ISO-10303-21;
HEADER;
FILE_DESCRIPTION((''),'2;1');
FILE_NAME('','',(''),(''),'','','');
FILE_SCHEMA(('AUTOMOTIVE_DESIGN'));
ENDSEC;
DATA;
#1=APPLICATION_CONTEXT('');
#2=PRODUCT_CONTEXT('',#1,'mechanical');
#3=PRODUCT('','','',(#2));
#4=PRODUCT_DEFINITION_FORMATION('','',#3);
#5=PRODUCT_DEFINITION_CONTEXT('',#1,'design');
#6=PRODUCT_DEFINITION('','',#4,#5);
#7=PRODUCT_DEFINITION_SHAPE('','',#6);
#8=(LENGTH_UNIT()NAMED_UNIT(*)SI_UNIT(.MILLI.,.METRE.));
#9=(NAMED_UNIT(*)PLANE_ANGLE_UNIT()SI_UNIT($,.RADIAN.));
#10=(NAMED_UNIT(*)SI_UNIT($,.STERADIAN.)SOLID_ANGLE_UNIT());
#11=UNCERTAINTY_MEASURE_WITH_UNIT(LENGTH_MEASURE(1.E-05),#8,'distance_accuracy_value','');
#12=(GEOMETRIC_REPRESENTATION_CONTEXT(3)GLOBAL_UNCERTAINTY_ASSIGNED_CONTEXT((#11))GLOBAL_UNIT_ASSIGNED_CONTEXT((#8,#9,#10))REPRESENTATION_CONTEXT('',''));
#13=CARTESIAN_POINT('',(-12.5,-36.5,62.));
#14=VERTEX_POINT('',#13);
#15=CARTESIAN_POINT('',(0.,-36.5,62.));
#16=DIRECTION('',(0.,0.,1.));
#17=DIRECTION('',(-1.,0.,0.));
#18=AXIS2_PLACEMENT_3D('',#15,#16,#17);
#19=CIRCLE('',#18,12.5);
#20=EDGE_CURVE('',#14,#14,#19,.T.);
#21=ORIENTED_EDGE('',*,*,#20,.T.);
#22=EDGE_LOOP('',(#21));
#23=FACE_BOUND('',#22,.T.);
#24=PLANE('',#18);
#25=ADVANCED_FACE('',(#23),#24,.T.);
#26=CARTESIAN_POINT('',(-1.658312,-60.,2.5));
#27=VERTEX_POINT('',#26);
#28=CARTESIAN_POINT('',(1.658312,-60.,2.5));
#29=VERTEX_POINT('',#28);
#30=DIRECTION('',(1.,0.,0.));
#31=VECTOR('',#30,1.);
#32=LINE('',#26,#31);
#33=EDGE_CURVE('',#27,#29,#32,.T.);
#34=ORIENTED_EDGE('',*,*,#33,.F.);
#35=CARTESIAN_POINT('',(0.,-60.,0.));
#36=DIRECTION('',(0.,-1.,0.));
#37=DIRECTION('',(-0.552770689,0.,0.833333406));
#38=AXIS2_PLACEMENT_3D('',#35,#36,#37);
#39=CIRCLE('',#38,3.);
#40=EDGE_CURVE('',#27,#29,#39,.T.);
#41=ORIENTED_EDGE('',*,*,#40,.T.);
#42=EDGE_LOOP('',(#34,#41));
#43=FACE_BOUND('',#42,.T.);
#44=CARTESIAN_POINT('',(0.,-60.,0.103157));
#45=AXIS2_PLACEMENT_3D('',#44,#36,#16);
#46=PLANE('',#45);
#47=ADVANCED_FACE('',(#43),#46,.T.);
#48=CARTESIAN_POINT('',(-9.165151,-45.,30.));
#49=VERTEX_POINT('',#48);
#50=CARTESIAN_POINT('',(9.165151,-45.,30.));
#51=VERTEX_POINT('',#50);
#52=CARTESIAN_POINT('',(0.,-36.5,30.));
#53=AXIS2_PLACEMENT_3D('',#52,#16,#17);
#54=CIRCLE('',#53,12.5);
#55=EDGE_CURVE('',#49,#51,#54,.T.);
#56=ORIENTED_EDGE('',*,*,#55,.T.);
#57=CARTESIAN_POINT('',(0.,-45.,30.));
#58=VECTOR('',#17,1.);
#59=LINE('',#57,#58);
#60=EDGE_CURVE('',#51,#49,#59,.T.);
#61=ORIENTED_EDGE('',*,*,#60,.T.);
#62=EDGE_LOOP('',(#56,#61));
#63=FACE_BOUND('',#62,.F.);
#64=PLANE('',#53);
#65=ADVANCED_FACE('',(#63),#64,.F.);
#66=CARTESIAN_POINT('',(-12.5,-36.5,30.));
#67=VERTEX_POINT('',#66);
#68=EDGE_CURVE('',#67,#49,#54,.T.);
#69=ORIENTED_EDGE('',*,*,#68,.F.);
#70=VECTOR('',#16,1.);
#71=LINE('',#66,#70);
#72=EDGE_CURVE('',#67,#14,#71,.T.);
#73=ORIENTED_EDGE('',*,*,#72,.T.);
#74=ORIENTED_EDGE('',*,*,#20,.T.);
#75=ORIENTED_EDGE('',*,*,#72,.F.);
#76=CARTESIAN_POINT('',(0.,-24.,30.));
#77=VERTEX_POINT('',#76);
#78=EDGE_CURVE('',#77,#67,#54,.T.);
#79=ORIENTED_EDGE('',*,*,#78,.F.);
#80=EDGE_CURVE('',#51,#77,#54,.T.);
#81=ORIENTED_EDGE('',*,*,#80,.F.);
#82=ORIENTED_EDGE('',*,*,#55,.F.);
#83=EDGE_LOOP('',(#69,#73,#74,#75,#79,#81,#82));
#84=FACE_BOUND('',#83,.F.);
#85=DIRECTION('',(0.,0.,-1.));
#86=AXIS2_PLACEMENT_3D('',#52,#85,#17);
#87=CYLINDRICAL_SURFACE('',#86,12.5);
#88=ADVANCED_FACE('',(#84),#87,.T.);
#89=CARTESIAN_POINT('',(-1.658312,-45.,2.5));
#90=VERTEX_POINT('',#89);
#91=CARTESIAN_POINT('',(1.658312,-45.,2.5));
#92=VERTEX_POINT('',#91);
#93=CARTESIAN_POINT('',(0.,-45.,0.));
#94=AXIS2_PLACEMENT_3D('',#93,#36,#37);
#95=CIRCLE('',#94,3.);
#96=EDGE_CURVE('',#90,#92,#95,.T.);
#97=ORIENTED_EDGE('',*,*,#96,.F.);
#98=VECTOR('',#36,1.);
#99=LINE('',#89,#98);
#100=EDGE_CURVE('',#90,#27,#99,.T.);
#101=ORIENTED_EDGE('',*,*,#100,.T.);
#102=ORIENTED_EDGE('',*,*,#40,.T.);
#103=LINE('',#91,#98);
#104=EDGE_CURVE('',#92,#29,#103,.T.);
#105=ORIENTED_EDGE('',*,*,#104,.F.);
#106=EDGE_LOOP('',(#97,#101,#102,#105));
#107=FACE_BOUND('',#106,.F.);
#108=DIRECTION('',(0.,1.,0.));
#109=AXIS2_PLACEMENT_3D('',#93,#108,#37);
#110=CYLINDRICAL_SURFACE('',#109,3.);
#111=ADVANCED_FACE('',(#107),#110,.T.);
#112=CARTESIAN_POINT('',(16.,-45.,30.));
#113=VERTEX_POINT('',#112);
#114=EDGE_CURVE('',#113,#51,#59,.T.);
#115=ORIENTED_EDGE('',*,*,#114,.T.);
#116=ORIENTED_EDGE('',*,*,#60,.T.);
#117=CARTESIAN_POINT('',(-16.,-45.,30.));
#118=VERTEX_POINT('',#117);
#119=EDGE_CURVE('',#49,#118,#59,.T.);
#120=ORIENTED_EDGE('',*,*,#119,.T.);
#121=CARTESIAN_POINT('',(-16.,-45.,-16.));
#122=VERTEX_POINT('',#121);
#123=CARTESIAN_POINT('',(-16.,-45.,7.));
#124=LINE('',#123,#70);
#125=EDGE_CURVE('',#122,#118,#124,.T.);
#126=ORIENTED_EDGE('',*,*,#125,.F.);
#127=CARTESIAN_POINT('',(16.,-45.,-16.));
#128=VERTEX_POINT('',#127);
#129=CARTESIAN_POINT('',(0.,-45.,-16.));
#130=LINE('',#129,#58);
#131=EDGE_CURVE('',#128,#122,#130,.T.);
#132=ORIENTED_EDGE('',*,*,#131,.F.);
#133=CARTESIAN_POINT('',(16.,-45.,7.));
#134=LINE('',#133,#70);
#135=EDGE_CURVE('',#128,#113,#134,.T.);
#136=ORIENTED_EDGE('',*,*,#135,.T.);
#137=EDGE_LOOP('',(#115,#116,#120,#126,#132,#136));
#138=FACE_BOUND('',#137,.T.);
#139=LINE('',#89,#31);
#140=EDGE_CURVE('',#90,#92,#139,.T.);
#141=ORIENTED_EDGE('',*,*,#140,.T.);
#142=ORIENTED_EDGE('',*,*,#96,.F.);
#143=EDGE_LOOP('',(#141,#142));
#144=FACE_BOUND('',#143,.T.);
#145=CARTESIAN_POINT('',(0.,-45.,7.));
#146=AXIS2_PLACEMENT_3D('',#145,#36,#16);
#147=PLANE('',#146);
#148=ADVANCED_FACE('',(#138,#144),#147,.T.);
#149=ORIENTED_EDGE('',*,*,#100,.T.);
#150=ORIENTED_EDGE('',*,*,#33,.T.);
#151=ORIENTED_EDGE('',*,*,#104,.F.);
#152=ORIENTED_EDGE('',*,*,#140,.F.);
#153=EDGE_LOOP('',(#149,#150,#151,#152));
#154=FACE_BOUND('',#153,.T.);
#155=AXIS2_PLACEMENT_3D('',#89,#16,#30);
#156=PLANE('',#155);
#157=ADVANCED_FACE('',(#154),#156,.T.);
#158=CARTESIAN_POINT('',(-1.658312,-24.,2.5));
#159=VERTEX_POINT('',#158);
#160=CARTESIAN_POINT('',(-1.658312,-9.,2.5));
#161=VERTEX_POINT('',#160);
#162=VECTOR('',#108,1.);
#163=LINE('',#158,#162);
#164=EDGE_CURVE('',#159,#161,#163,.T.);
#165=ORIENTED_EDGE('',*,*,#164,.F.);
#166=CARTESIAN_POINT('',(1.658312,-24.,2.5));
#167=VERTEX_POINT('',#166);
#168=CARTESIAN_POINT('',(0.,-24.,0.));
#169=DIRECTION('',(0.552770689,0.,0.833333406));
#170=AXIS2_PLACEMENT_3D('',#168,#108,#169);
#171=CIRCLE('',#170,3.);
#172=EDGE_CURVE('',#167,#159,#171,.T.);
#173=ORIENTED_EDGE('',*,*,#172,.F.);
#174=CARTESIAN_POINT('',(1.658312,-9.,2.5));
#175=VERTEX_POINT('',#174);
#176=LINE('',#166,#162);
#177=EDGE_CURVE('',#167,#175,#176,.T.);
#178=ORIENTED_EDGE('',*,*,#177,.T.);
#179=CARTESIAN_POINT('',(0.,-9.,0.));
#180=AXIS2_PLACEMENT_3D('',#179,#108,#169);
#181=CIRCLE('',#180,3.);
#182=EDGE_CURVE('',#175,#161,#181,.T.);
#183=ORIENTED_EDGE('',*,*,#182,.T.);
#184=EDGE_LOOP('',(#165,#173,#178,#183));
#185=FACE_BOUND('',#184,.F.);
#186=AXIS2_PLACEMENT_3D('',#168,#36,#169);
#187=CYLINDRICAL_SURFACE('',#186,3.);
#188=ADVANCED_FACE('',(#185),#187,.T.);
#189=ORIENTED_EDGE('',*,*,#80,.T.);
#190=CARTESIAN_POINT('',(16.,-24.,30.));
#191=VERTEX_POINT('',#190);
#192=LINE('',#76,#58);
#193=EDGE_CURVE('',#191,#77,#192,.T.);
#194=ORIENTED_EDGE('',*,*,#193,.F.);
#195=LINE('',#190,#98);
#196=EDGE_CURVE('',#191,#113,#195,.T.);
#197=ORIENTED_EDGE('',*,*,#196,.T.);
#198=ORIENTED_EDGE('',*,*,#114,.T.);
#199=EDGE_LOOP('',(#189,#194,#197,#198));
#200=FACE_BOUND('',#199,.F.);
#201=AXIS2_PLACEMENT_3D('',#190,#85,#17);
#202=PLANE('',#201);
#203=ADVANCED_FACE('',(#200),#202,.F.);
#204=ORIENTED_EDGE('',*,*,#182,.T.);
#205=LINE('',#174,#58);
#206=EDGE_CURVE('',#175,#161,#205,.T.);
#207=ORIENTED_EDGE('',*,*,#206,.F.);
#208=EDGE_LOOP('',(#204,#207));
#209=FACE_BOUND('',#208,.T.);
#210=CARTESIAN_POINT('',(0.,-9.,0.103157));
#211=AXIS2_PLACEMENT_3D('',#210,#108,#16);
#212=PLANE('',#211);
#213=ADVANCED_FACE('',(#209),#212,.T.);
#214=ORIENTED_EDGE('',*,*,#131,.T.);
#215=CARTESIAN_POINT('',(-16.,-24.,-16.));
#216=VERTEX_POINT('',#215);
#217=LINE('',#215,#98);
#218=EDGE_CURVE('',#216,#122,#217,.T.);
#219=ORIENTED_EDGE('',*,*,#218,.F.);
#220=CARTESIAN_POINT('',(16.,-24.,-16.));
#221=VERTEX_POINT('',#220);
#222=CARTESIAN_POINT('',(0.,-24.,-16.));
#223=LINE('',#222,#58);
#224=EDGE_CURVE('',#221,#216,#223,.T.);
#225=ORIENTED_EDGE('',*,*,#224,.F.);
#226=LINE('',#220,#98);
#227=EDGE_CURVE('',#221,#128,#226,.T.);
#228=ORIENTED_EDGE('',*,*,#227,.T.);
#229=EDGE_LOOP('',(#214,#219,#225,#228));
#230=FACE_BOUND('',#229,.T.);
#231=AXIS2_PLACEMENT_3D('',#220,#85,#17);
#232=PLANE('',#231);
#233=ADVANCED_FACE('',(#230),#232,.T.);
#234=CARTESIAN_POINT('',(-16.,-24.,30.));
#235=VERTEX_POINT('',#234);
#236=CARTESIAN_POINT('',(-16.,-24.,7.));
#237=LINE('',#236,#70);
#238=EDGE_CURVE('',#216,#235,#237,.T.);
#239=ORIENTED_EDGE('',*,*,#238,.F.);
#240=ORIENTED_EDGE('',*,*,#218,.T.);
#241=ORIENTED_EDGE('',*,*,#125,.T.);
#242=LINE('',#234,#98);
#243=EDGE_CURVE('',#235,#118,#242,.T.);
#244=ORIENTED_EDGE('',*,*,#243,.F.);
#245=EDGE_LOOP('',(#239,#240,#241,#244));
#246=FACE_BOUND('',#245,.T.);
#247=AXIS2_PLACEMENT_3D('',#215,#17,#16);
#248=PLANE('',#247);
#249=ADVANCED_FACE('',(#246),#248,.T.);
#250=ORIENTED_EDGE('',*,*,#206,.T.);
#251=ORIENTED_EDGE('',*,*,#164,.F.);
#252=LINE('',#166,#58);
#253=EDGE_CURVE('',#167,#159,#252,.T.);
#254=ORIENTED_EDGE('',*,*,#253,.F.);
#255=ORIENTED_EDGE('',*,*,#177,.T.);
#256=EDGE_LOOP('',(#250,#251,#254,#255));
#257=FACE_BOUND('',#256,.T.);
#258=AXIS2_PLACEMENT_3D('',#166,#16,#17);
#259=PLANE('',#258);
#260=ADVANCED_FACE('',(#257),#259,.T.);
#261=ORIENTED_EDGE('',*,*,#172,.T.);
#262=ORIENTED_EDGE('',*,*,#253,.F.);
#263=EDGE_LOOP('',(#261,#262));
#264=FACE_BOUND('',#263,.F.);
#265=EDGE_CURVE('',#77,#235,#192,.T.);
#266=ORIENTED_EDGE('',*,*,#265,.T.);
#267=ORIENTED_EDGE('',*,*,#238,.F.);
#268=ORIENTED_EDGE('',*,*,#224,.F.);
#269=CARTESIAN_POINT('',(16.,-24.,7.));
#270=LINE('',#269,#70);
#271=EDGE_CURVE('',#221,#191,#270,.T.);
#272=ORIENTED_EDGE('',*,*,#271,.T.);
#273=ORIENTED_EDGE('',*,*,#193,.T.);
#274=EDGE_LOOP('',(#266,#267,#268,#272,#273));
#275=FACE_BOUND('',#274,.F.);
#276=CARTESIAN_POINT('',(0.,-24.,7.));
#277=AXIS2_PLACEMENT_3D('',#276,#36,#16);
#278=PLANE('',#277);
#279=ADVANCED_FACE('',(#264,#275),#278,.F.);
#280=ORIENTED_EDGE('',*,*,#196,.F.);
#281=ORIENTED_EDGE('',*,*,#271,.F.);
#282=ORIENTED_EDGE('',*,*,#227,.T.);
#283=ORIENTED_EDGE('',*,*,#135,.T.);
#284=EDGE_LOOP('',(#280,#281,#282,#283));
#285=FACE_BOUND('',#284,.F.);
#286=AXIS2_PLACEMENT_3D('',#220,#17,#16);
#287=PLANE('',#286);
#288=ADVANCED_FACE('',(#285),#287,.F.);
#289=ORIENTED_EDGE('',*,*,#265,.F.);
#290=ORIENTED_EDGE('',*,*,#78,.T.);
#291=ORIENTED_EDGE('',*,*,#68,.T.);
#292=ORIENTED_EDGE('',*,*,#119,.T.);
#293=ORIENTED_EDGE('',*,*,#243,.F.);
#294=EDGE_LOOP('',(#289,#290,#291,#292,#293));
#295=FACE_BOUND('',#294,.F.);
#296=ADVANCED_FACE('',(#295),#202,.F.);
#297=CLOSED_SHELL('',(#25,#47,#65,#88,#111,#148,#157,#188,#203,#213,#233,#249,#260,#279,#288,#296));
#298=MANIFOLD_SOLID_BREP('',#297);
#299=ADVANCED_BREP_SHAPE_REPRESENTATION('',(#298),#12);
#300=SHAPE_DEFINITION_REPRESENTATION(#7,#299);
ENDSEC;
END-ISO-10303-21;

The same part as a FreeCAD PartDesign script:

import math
import FreeCAD as App
import Part
import Sketcher
from FreeCAD import Vector
Q = App.Units.Quantity


def add_polygon(sketch, points):
    """Adds a closed chain of lines whose ends are joined by coincident constraints."""
    first, n = sketch.GeometryCount, len(points)
    for a, b in zip(points, points[1:] + points[:1]):
        sketch.addGeometry(Part.LineSegment(App.Vector(*a, 0), App.Vector(*b, 0)), False)
    for i in range(n):
        sketch.addConstraint(Sketcher.Constraint("Coincident", first + i, 2, first + (i + 1) % n, 1))

doc = App.newDocument("Part")
body = doc.addObject("PartDesign::Body", "Body")

# Sketch on XY plane
sketch1 = body.newObject("Sketcher::SketchObject", "Sketch")
sketch1.AttachmentSupport = (doc.getObject("XY_Plane"), [""])
sketch1.MapMode = "FlatFace"
add_polygon(sketch1, [(-16, 16), (-16, -16), (30, -16), (30, 16)])  # lines 0-3
sketch1.addConstraint([
    Sketcher.Constraint("Vertical", 0),
    Sketcher.Constraint("Horizontal", 1),
    Sketcher.Constraint("Vertical", 2),
    Sketcher.Constraint("Horizontal", 3),
    Sketcher.Constraint("DistanceX", 1, 1, 1, 2, Q("46 mm")),
    Sketcher.Constraint("DistanceY", 0, 2, 0, 1, Q("32 mm")),
    Sketcher.Constraint("DistanceX", 0, 2, -1, 1, Q("16 mm")),
    Sketcher.Constraint("DistanceY", 0, 2, -1, 1, Q("16 mm")),
])
pad1 = body.newObject("PartDesign::Pad", "Pad")
pad1.Profile = sketch1
pad1.Length = 21

# Sketch on YZ plane
sketch2 = body.newObject("Sketcher::SketchObject", "Sketch001")
sketch2.AttachmentSupport = (doc.getObject("YZ_Plane"), [""])
sketch2.MapMode = "FlatFace"
sketch2.AttachmentOffset = App.Placement(Vector(0, 0, 30), App.Rotation())
sketch2.addGeometry(Part.Circle(Vector(0, 12.5, 0), Vector(0, 0, 1), 12.5), False)
sketch2.addConstraint([
    Sketcher.Constraint("PointOnObject", 0, 3, -2),
    Sketcher.Constraint("Diameter", 0, Q("25 mm")),
    Sketcher.Constraint("DistanceY", -1, 1, 0, 3, Q("12.5 mm")),
])
pad2 = body.newObject("PartDesign::Pad", "Pad001")
pad2.Profile = sketch2
pad2.Length = 32

# Sketch on XY plane
sketch3 = body.newObject("Sketcher::SketchObject", "Sketch002")
sketch3.AttachmentSupport = (doc.getObject("XY_Plane"), [""])
sketch3.MapMode = "FlatFace"
sketch3.addGeometry([
    Part.ArcOfCircle(Part.Circle(Vector(0, 0, 0), Vector(0, 0, 1), 3), math.radians(33.557302), math.radians(326.442698)),
    Part.LineSegment(Vector(2.5, 1.658312, 0), Vector(2.5, -1.658312, 0)),
], False)
sketch3.addConstraint([
    Sketcher.Constraint("Coincident", 0, 1, 1, 1),
    Sketcher.Constraint("Coincident", 1, 2, 0, 2),
    Sketcher.Constraint("Vertical", 1),
    Sketcher.Constraint("Coincident", 0, 3, -1, 1),
    Sketcher.Constraint("Radius", 0, Q("3 mm")),
    Sketcher.Constraint("DistanceX", -1, 1, 0, 1, Q("2.5 mm")),
])
pad3 = body.newObject("PartDesign::Pad", "Pad002")
pad3.Profile = sketch3
pad3.Length = 15
pad3.Reversed = True

# Sketch on XY plane
sketch4 = body.newObject("Sketcher::SketchObject", "Sketch003")
sketch4.AttachmentSupport = (doc.getObject("XY_Plane"), [""])
sketch4.MapMode = "FlatFace"
sketch4.AttachmentOffset = App.Placement(Vector(0, 0, 21), App.Rotation())
sketch4.addGeometry([
    Part.ArcOfCircle(Part.Circle(Vector(0, 0, 0), Vector(0, 0, 1), 3), math.radians(33.557302), math.radians(326.442698)),
    Part.LineSegment(Vector(2.5, -1.658312, 0), Vector(2.5, 1.658312, 0)),
], False)
sketch4.addConstraint([
    Sketcher.Constraint("Coincident", 0, 1, 1, 2),
    Sketcher.Constraint("Coincident", 1, 1, 0, 2),
    Sketcher.Constraint("Vertical", 1),
    Sketcher.Constraint("Coincident", 0, 3, -1, 1),
    Sketcher.Constraint("Radius", 0, Q("3 mm")),
    Sketcher.Constraint("DistanceX", -1, 1, 0, 1, Q("2.5 mm")),
])
pad4 = body.newObject("PartDesign::Pad", "Pad003")
pad4.Profile = sketch4
pad4.Length = 15
body2 = doc.addObject("PartDesign::Body", "Body001")
doc.recompute()

body.Placement = App.Placement(Vector(0, 0, 0), App.Rotation(Vector(0, 1, 0), 270))
boolean = body2.newObject("PartDesign::Boolean", "Boolean")
boolean.Type = "Fuse"
boolean.addObjects([body])
body3 = doc.addObject("PartDesign::Body", "Body002")
doc.recompute()

body2.Placement = App.Placement(Vector(0, -24, 0), App.Rotation(Vector(0, 0, 1), 90))
boolean2 = body3.newObject("PartDesign::Boolean", "Boolean001")
boolean2.Type = "Fuse"
boolean2.addObjects([body2])

doc.recompute()
